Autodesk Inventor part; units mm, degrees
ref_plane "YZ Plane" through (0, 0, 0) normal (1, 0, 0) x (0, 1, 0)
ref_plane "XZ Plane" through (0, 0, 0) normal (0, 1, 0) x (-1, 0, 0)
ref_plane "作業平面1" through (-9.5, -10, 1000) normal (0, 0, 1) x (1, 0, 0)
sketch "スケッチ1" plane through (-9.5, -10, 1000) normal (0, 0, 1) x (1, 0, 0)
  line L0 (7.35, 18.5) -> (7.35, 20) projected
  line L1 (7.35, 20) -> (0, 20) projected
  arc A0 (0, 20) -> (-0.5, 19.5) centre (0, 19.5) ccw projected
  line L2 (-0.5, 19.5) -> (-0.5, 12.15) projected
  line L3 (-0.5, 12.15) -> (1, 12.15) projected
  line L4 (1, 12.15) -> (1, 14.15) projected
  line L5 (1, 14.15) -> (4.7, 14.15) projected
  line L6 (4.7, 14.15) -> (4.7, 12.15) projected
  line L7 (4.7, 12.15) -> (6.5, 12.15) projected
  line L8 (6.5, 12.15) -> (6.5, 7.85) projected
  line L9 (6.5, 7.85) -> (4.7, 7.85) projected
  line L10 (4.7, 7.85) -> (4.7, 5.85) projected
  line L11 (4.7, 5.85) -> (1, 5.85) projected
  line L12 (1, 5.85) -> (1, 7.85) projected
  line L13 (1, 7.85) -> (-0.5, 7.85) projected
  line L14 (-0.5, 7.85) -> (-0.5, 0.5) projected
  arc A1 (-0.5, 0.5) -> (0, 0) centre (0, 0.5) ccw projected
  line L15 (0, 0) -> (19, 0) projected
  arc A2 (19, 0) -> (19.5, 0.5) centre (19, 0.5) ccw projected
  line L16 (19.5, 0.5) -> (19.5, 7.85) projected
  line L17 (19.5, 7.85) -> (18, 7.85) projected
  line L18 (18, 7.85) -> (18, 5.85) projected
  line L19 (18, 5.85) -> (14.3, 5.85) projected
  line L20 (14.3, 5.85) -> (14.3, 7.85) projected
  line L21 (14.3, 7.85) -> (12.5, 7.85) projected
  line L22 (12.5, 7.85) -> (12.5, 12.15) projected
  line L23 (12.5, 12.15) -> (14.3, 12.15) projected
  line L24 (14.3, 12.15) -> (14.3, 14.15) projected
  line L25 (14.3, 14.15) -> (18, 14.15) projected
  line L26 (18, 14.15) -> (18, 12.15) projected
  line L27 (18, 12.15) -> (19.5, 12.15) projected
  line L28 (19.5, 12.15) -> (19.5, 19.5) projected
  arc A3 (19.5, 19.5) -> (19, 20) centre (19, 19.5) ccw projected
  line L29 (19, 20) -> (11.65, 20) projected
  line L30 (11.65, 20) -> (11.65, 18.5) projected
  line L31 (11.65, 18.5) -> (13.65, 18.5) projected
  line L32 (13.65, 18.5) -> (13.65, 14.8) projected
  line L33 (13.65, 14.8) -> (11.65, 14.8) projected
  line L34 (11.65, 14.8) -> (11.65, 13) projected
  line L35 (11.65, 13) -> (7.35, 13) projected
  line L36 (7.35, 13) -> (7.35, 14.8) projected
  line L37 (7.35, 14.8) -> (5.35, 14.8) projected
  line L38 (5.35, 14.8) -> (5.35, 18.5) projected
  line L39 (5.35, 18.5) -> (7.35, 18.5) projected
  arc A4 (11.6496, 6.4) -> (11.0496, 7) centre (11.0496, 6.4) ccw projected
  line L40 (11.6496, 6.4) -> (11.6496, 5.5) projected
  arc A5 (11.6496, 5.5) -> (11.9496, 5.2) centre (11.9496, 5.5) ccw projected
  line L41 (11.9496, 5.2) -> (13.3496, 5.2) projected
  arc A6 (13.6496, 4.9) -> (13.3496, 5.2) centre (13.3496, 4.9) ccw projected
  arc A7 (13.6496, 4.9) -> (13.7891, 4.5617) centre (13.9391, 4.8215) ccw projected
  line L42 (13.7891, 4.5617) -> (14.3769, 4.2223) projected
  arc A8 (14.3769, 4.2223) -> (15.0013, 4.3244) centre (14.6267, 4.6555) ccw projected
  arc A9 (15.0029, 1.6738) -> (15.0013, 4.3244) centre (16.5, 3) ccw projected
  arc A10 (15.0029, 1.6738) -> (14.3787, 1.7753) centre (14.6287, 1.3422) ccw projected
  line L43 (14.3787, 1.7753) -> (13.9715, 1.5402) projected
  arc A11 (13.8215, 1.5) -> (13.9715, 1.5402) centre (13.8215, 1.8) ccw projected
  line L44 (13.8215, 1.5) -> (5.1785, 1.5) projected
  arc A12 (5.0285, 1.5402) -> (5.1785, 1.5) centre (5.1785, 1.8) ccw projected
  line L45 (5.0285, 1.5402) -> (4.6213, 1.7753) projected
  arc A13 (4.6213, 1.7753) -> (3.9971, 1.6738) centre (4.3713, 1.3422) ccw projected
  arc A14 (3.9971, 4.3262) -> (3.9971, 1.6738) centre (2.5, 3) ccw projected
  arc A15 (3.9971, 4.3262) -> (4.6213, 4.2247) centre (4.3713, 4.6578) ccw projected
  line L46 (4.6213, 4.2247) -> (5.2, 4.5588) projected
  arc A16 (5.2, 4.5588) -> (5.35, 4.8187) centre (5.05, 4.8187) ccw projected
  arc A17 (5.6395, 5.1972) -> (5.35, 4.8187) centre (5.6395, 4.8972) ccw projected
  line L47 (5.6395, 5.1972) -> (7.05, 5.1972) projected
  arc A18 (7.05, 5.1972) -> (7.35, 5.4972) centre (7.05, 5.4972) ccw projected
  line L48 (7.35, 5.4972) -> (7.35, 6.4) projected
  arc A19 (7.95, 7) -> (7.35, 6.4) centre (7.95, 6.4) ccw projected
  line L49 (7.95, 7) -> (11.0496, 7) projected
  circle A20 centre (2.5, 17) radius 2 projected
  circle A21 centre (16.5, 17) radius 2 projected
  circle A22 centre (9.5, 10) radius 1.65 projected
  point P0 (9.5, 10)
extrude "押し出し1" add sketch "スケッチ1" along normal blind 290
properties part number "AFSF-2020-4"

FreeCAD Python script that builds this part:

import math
import FreeCAD as App
import Part
import Sketcher

V = App.Vector
Q = App.Units.Quantity

doc = App.newDocument("Part")
body = doc.addObject("PartDesign::Body", "Body")

# Sketch on XY plane
sketch1 = body.newObject("Sketcher::SketchObject", "Sketch")
sketch1.AttachmentSupport = (doc.getObject("XY_Plane"), [""])
sketch1.MapMode = "FlatFace"
sketch1.AttachmentOffset = App.Placement(V(0, 0, 1000), App.Rotation())
sketch1.addGeometry([
    Part.LineSegment(V(-4.15, 8.5, 0), V(-2.15, 8.5, 0)),  # 0
    Part.LineSegment(V(-2.15, 8.5, 0), V(-2.15, 10, 0)),  # 1
    Part.LineSegment(V(-2.15, 10, 0), V(-9.5, 10, 0)),  # 2
    Part.ArcOfCircle(Part.Circle(V(-9.5, 9.5, 0), V(0, 0, 1), 0.5), math.radians(90), math.radians(180)),  # 3
    Part.LineSegment(V(-10, 9.5, 0), V(-10, 2.15, 0)),  # 4
    Part.LineSegment(V(-10, 2.15, 0), V(-8.5, 2.15, 0)),  # 5
    Part.LineSegment(V(-8.5, 2.15, 0), V(-8.5, 4.15, 0)),  # 6
    Part.LineSegment(V(-8.5, 4.15, 0), V(-4.8, 4.15, 0)),  # 7
    Part.LineSegment(V(-4.8, 4.15, 0), V(-4.8, 2.15, 0)),  # 8
    Part.LineSegment(V(-4.8, 2.15, 0), V(-3, 2.15, 0)),  # 9
    Part.LineSegment(V(-3, 2.15, 0), V(-3, -2.15, 0)),  # 10
    Part.LineSegment(V(-3, -2.15, 0), V(-4.8, -2.15, 0)),  # 11
    Part.LineSegment(V(-4.8, -2.15, 0), V(-4.8, -4.15, 0)),  # 12
    Part.LineSegment(V(-4.8, -4.15, 0), V(-8.5, -4.15, 0)),  # 13
    Part.LineSegment(V(-8.5, -4.15, 0), V(-8.5, -2.15, 0)),  # 14
    Part.LineSegment(V(-8.5, -2.15, 0), V(-10, -2.15, 0)),  # 15
    Part.LineSegment(V(-10, -2.15, 0), V(-10, -9.5, 0)),  # 16
    Part.ArcOfCircle(Part.Circle(V(-9.5, -9.5, 0), V(0, 0, 1), 0.5), math.radians(180), math.radians(270)),  # 17
    Part.LineSegment(V(-9.5, -10, 0), V(9.5, -10, 0)),  # 18
    Part.ArcOfCircle(Part.Circle(V(9.5, -9.5, 0), V(0, 0, 1), 0.5), math.radians(-90), math.radians(0)),  # 19
    Part.LineSegment(V(10, -9.5, 0), V(10, -2.15, 0)),  # 20
    Part.LineSegment(V(10, -2.15, 0), V(8.5, -2.15, 0)),  # 21
    Part.LineSegment(V(8.5, -2.15, 0), V(8.5, -4.15, 0)),  # 22
    Part.LineSegment(V(8.5, -4.15, 0), V(4.8, -4.15, 0)),  # 23
    Part.LineSegment(V(4.8, -4.15, 0), V(4.8, -2.15, 0)),  # 24
    Part.LineSegment(V(4.8, -2.15, 0), V(3, -2.15, 0)),  # 25
    Part.LineSegment(V(3, -2.15, 0), V(3, 2.15, 0)),  # 26
    Part.LineSegment(V(3, 2.15, 0), V(4.8, 2.15, 0)),  # 27
    Part.LineSegment(V(4.8, 2.15, 0), V(4.8, 4.15, 0)),  # 28
    Part.LineSegment(V(4.8, 4.15, 0), V(8.5, 4.15, 0)),  # 29
    Part.LineSegment(V(8.5, 4.15, 0), V(8.5, 2.15, 0)),  # 30
    Part.LineSegment(V(8.5, 2.15, 0), V(10, 2.15, 0)),  # 31
    Part.LineSegment(V(10, 2.15, 0), V(10, 9.5, 0)),  # 32
    Part.ArcOfCircle(Part.Circle(V(9.5, 9.5, 0), V(0, 0, 1), 0.5), math.radians(0), math.radians(90)),  # 33
    Part.LineSegment(V(9.5, 10, 0), V(2.15, 10, 0)),  # 34
    Part.LineSegment(V(2.15, 10, 0), V(2.15, 8.5, 0)),  # 35
    Part.LineSegment(V(2.15, 8.5, 0), V(4.15, 8.5, 0)),  # 36
    Part.LineSegment(V(4.15, 8.5, 0), V(4.15, 4.8, 0)),  # 37
    Part.LineSegment(V(4.15, 4.8, 0), V(2.15, 4.8, 0)),  # 38
    Part.LineSegment(V(2.15, 4.8, 0), V(2.15, 3, 0)),  # 39
    Part.LineSegment(V(2.15, 3, 0), V(-2.15, 3, 0)),  # 40
    Part.LineSegment(V(-2.15, 3, 0), V(-2.15, 4.8, 0)),  # 41
    Part.LineSegment(V(-2.15, 4.8, 0), V(-4.15, 4.8, 0)),  # 42
    Part.LineSegment(V(-4.15, 4.8, 0), V(-4.15, 8.5, 0)),  # 43
    Part.ArcOfCircle(Part.Circle(V(1.55, -3.6, 0), V(0, 0, 1), 0.6), math.radians(0), math.radians(90)),  # 44
    Part.LineSegment(V(2.15, -3.6, 0), V(2.15, -4.5, 0)),  # 45
    Part.ArcOfCircle(Part.Circle(V(2.45, -4.5, 0), V(0, 0, 1), 0.3), math.radians(180), math.radians(270)),  # 46
    Part.LineSegment(V(2.45, -4.8, 0), V(3.85, -4.8, 0)),  # 47
    Part.ArcOfCircle(Part.Circle(V(3.85, -5.1, 0), V(0, 0, 1), 0.3), math.radians(0), math.radians(90)),  # 48
    Part.ArcOfCircle(Part.Circle(V(4.44, -5.18, 0), V(0, 0, 1), 0.3), math.radians(165), math.radians(240)),  # 49
    Part.LineSegment(V(4.29, -5.44, 0), V(4.88, -5.78, 0)),  # 50
    Part.ArcOfCircle(Part.Circle(V(5.13, -5.34, 0), V(0, 0, 1), 0.5), math.radians(-120), math.radians(-41)),  # 51
    Part.ArcOfCircle(Part.Circle(V(7, -7, 0), V(0, 0, 1), 2), math.radians(-138), math.radians(139)),  # 52
    Part.ArcOfCircle(Part.Circle(V(5.13, -8.66, 0), V(0, 0, 1), 0.5), math.radians(42), math.radians(120)),  # 53
    Part.LineSegment(V(4.88, -8.22, 0), V(4.47, -8.46, 0)),  # 54
    Part.ArcOfCircle(Part.Circle(V(4.32, -8.2, 0), V(0, 0, 1), 0.3), math.radians(-90), math.radians(-60)),  # 55
    Part.LineSegment(V(4.32, -8.5, 0), V(-4.32, -8.5, 0)),  # 56
    Part.ArcOfCircle(Part.Circle(V(-4.32, -8.2, 0), V(0, 0, 1), 0.3), math.radians(-120), math.radians(-90)),  # 57
    Part.LineSegment(V(-4.47, -8.46, 0), V(-4.88, -8.22, 0)),  # 58
    Part.ArcOfCircle(Part.Circle(V(-5.13, -8.66, 0), V(0, 0, 1), 0.5), math.radians(60), math.radians(138)),  # 59
    Part.ArcOfCircle(Part.Circle(V(-7, -7, 0), V(0, 0, 1), 2), math.radians(42), math.radians(318)),  # 60
    Part.ArcOfCircle(Part.Circle(V(-5.13, -5.34, 0), V(0, 0, 1), 0.5), math.radians(-138), math.radians(-60)),  # 61
    Part.LineSegment(V(-4.88, -5.78, 0), V(-4.3, -5.44, 0)),  # 62
    Part.ArcOfCircle(Part.Circle(V(-4.45, -5.18, 0), V(0, 0, 1), 0.3), math.radians(-60), math.radians(0)),  # 63
    Part.ArcOfCircle(Part.Circle(V(-3.86, -5.1, 0), V(0, 0, 1), 0.3), math.radians(90), math.radians(195)),  # 64
    Part.LineSegment(V(-3.86, -4.8, 0), V(-2.45, -4.8, 0)),  # 65
    Part.ArcOfCircle(Part.Circle(V(-2.45, -4.5, 0), V(0, 0, 1), 0.3), math.radians(-90), math.radians(0)),  # 66
    Part.LineSegment(V(-2.15, -4.5, 0), V(-2.15, -3.6, 0)),  # 67
    Part.ArcOfCircle(Part.Circle(V(-1.55, -3.6, 0), V(0, 0, 1), 0.6), math.radians(90), math.radians(180)),  # 68
    Part.LineSegment(V(-1.55, -3, 0), V(1.55, -3, 0)),  # 69
    Part.Circle(V(-7, 7, 0), V(0, 0, 1), 2),  # 70
    Part.Circle(V(0, 0, 0), V(0, 0, 1), 1.65),  # 71
    Part.Circle(V(7, 7, 0), V(0, 0, 1), 2),  # 72
], False)
sketch1.addConstraint([
    Sketcher.Constraint("Coincident", 0, 2, 1, 1),
    Sketcher.Constraint("Coincident", 1, 2, 2, 1),
    Sketcher.Constraint("Tangent", 2, 2, 3, 1),
    Sketcher.Constraint("Tangent", 3, 2, 4, 1),
    Sketcher.Constraint("Coincident", 4, 2, 5, 1),
    Sketcher.Constraint("Coincident", 5, 2, 6, 1),
    Sketcher.Constraint("Coincident", 6, 2, 7, 1),
    Sketcher.Constraint("Coincident", 7, 2, 8, 1),
    Sketcher.Constraint("Coincident", 8, 2, 9, 1),
    Sketcher.Constraint("Coincident", 9, 2, 10, 1),
    Sketcher.Constraint("Coincident", 10, 2, 11, 1),
    Sketcher.Constraint("Coincident", 11, 2, 12, 1),
    Sketcher.Constraint("Coincident", 12, 2, 13, 1),
    Sketcher.Constraint("Coincident", 13, 2, 14, 1),
    Sketcher.Constraint("Coincident", 14, 2, 15, 1),
    Sketcher.Constraint("Coincident", 15, 2, 16, 1),
    Sketcher.Constraint("Tangent", 16, 2, 17, 1),
    Sketcher.Constraint("Tangent", 17, 2, 18, 1),
    Sketcher.Constraint("Tangent", 18, 2, 19, 1),
    Sketcher.Constraint("Tangent", 19, 2, 20, 1),
    Sketcher.Constraint("Coincident", 20, 2, 21, 1),
    Sketcher.Constraint("Coincident", 21, 2, 22, 1),
    Sketcher.Constraint("Coincident", 22, 2, 23, 1),
    Sketcher.Constraint("Coincident", 23, 2, 24, 1),
    Sketcher.Constraint("Coincident", 24, 2, 25, 1),
    Sketcher.Constraint("Coincident", 25, 2, 26, 1),
    Sketcher.Constraint("Coincident", 26, 2, 27, 1),
    Sketcher.Constraint("Coincident", 27, 2, 28, 1),
    Sketcher.Constraint("Coincident", 28, 2, 29, 1),
    Sketcher.Constraint("Coincident", 29, 2, 30, 1),
    Sketcher.Constraint("Coincident", 30, 2, 31, 1),
    Sketcher.Constraint("Coincident", 31, 2, 32, 1),
    Sketcher.Constraint("Tangent", 32, 2, 33, 1),
    Sketcher.Constraint("Tangent", 33, 2, 34, 1),
    Sketcher.Constraint("Coincident", 34, 2, 35, 1),
    Sketcher.Constraint("Coincident", 35, 2, 36, 1),
    Sketcher.Constraint("Coincident", 36, 2, 37, 1),
    Sketcher.Constraint("Coincident", 37, 2, 38, 1),
    Sketcher.Constraint("Coincident", 38, 2, 39, 1),
    Sketcher.Constraint("Coincident", 39, 2, 40, 1),
    Sketcher.Constraint("Coincident", 40, 2, 41, 1),
    Sketcher.Constraint("Coincident", 41, 2, 42, 1),
    Sketcher.Constraint("Coincident", 42, 2, 43, 1),
    Sketcher.Constraint("Coincident", 43, 2, 0, 1),
    Sketcher.Constraint("Tangent", 44, 1, 45, 1),
    Sketcher.Constraint("Tangent", 45, 2, 46, 1),
    Sketcher.Constraint("Tangent", 46, 2, 47, 1),
    Sketcher.Constraint("Tangent", 47, 2, 48, 2),
    Sketcher.Constraint("Coincident", 48, 1, 49, 1),
    Sketcher.Constraint("Tangent", 49, 2, 50, 1),
    Sketcher.Constraint("Coincident", 50, 2, 51, 1),
    Sketcher.Constraint("Tangent", 51, 2, 52, 2),
    Sketcher.Constraint("Tangent", 52, 1, 53, 1),
    Sketcher.Constraint("Tangent", 53, 2, 54, 1),
    Sketcher.Constraint("Tangent", 54, 2, 55, 2),
    Sketcher.Constraint("Tangent", 55, 1, 56, 1),
    Sketcher.Constraint("Tangent", 56, 2, 57, 2),
    Sketcher.Constraint("Tangent", 57, 1, 58, 1),
    Sketcher.Constraint("Tangent", 58, 2, 59, 1),
    Sketcher.Constraint("Tangent", 59, 2, 60, 2),
    Sketcher.Constraint("Tangent", 60, 1, 61, 1),
    Sketcher.Constraint("Tangent", 61, 2, 62, 1),
    Sketcher.Constraint("Tangent", 62, 2, 63, 1),
    Sketcher.Constraint("Coincident", 63, 2, 64, 2),
    Sketcher.Constraint("Tangent", 64, 1, 65, 1),
    Sketcher.Constraint("Tangent", 65, 2, 66, 1),
    Sketcher.Constraint("Tangent", 66, 2, 67, 1),
    Sketcher.Constraint("Tangent", 67, 2, 68, 2),
    Sketcher.Constraint("Tangent", 68, 1, 69, 1),
    Sketcher.Constraint("Tangent", 69, 2, 44, 2),
    Sketcher.Constraint("Horizontal", 0),
    Sketcher.Constraint("Vertical", 1),
    Sketcher.Constraint("Horizontal", 2),
    Sketcher.Constraint("Vertical", 4),
    Sketcher.Constraint("Horizontal", 5),
    Sketcher.Constraint("Vertical", 6),
    Sketcher.Constraint("Horizontal", 7),
    Sketcher.Constraint("Vertical", 8),
    Sketcher.Constraint("Horizontal", 9),
    Sketcher.Constraint("Vertical", 10),
    Sketcher.Constraint("Horizontal", 11),
    Sketcher.Constraint("Vertical", 12),
    Sketcher.Constraint("Horizontal", 13),
    Sketcher.Constraint("Vertical", 14),
    Sketcher.Constraint("Horizontal", 15),
    Sketcher.Constraint("Vertical", 16),
    Sketcher.Constraint("Horizontal", 18),
    Sketcher.Constraint("Vertical", 20),
    Sketcher.Constraint("Horizontal", 21),
    Sketcher.Constraint("Vertical", 22),
    Sketcher.Constraint("Horizontal", 23),
    Sketcher.Constraint("Vertical", 24),
    Sketcher.Constraint("Horizontal", 25),
    Sketcher.Constraint("Vertical", 26),
    Sketcher.Constraint("Horizontal", 27),
    Sketcher.Constraint("Vertical", 28),
    Sketcher.Constraint("Horizontal", 29),
    Sketcher.Constraint("Vertical", 30),
    Sketcher.Constraint("Horizontal", 31),
    Sketcher.Constraint("Vertical", 32),
    Sketcher.Constraint("Horizontal", 34),
    Sketcher.Constraint("Vertical", 35),
    Sketcher.Constraint("Horizontal", 36),
    Sketcher.Constraint("Vertical", 37),
    Sketcher.Constraint("Horizontal", 38),
    Sketcher.Constraint("Vertical", 39),
    Sketcher.Constraint("Horizontal", 40),
    Sketcher.Constraint("Vertical", 41),
    Sketcher.Constraint("Horizontal", 42),
    Sketcher.Constraint("Vertical", 43),
    Sketcher.Constraint("Vertical", 45),
    Sketcher.Constraint("Horizontal", 47),
    Sketcher.Constraint("Horizontal", 56),
    Sketcher.Constraint("Horizontal", 65),
    Sketcher.Constraint("Vertical", 67),
    Sketcher.Constraint("Horizontal", 69),
    Sketcher.Constraint("Coincident", 71, 3, -1, 1),
    Sketcher.Constraint("Equal", 3, 17),
    Sketcher.Constraint("Equal", 17, 19),
    Sketcher.Constraint("Equal", 19, 33),
    Sketcher.Constraint("Equal", 46, 48),
    Sketcher.Constraint("Equal", 48, 49),
    Sketcher.Constraint("Equal", 33, 51),
    Sketcher.Constraint("Equal", 51, 53),
    Sketcher.Constraint("Equal", 49, 55),
    Sketcher.Constraint("Equal", 55, 57),
    Sketcher.Constraint("Equal", 53, 59),
    Sketcher.Constraint("Equal", 52, 60),
    Sketcher.Constraint("Equal", 59, 61),
    Sketcher.Constraint("Equal", 57, 63),
    Sketcher.Constraint("Equal", 63, 64),
    Sketcher.Constraint("Equal", 64, 66),
    Sketcher.Constraint("Equal", 44, 68),
    Sketcher.Constraint("Equal", 60, 70),
    Sketcher.Constraint("Equal", 70, 72),
    Sketcher.Constraint("Symmetric", 3, 3, 19, 3, -1, 1),
    Sketcher.Constraint("Symmetric", 17, 3, 33, 3, -1, 1),
    Sketcher.Constraint("Symmetric", 52, 3, 70, 3, -1, 1),
    Sketcher.Constraint("Symmetric", 60, 3, 72, 3, -1, 1),
    Sketcher.Constraint("Symmetric", 5, 2, 21, 2, -1, 1),
    Sketcher.Constraint("Symmetric", 7, 2, 23, 2, -1, 1),
    Sketcher.Constraint("Symmetric", 9, 2, 25, 2, -1, 1),
    Sketcher.Constraint("Symmetric", 11, 2, 27, 2, -1, 1),
    Sketcher.Constraint("Symmetric", 13, 2, 29, 2, -1, 1),
    Sketcher.Constraint("Symmetric", 53, 3, 59, 3, -2),
    Sketcher.Constraint("Symmetric", 15, 2, 20, 2, -2),
    Sketcher.Constraint("Symmetric", 13, 2, 22, 2, -2),
    Sketcher.Constraint("Symmetric", 11, 2, 24, 2, -2),
    Sketcher.Constraint("Symmetric", 0, 2, 35, 2, -2),
    Sketcher.Constraint("Symmetric", 38, 2, 41, 2, -2),
    Sketcher.Constraint("Parallel", 50, 58),
    Sketcher.Constraint("Parallel", 54, 62),
    Sketcher.Constraint("Horizontal", 52, 3, 60, 3),
    Sketcher.Constraint("Horizontal", 5, 2, 8, 2),
    Sketcher.Constraint("Horizontal", 27, 2, 30, 2),
    Sketcher.Constraint("Horizontal", 54, 2, 57, 1),
    Sketcher.Constraint("Vertical", 59, 3, 61, 3),
    Sketcher.Constraint("Vertical", 35, 2, 38, 2),
    Sketcher.Constraint("Vertical", 43, 2, 63, 2),
    Sketcher.Constraint("Vertical", 41, 2, 66, 2),
    Sketcher.Constraint("Equal", 0, 36),
    Sketcher.Constraint("Equal", 31, 1),
    Sketcher.Constraint("Equal", 34, 4),
    Sketcher.Constraint("Equal", 42, 6),
    Sketcher.Constraint("Equal", 40, 10),
    Sketcher.Constraint("Equal", 29, 37),
    Sketcher.Constraint("Equal", 27, 39),
    Sketcher.Constraint("Diameter", 70, Q("4 mm")),
    Sketcher.Constraint("Diameter", 71, Q("3.3 mm")),
    Sketcher.Constraint("Radius", 3, Q("0.5 mm")),
    Sketcher.Constraint("Radius", 44, Q("0.6 mm")),
    Sketcher.Constraint("Radius", 46, Q("0.3 mm")),
    Sketcher.Constraint("DistanceX", 0, 1, 0, 2, Q("2 mm")),
    Sketcher.Constraint("DistanceX", 18, 1, 18, 2, Q("19 mm")),
    Sketcher.Constraint("Angle", 54, Q("-149.9997 deg")),
    Sketcher.Constraint("DistanceX", 5, 1, 5, 2, Q("1.5 mm")),
    Sketcher.Constraint("DistanceX", 7, 1, 7, 2, Q("3.7 mm")),
    Sketcher.Constraint("DistanceX", 9, 1, 9, 2, Q("1.8 mm")),
    Sketcher.Constraint("DistanceX", 40, 2, 40, 1, Q("4.3 mm")),
    Sketcher.Constraint("DistanceX", 47, 1, 47, 2, Q("1.4 mm")),
    Sketcher.Constraint("DistanceY", 45, 2, 45, 1, Q("0.9 mm")),
    Sketcher.Constraint("DistanceX", -1, 1, 52, 3, Q("7 mm")),
    Sketcher.Constraint("DistanceY", 52, 3, -1, 1, Q("7 mm")),
    Sketcher.Constraint("DistanceY", 68, 1, -1, 1, Q("3 mm")),
    Sketcher.Constraint("DistanceY", 55, 3, -1, 1, Q("8.2 mm")),
    Sketcher.Constraint("DistanceY", 48, 1, -1, 1, Q("5.1 mm")),
    Sketcher.Constraint("DistanceX", 56, 2, 56, 1, Q("8.643 mm")),
    Sketcher.Constraint("DistanceX", 65, 1, 65, 2, Q("1.4105 mm")),
    Sketcher.Constraint("DistanceX", 69, 1, 69, 2, Q("3.0996 mm")),
    Sketcher.Constraint("DistanceY", 67, 1, 67, 2, Q("0.9028 mm")),
    Sketcher.Constraint("DistanceX", -1, 1, 49, 3, Q("4.439 mm")),
    Sketcher.Constraint("DistanceX", -1, 1, 50, 2, Q("4.877 mm")),
])
pad1 = body.newObject("PartDesign::Pad", "Pad")
pad1.Profile = sketch1
pad1.Length = 290

doc.recompute()
